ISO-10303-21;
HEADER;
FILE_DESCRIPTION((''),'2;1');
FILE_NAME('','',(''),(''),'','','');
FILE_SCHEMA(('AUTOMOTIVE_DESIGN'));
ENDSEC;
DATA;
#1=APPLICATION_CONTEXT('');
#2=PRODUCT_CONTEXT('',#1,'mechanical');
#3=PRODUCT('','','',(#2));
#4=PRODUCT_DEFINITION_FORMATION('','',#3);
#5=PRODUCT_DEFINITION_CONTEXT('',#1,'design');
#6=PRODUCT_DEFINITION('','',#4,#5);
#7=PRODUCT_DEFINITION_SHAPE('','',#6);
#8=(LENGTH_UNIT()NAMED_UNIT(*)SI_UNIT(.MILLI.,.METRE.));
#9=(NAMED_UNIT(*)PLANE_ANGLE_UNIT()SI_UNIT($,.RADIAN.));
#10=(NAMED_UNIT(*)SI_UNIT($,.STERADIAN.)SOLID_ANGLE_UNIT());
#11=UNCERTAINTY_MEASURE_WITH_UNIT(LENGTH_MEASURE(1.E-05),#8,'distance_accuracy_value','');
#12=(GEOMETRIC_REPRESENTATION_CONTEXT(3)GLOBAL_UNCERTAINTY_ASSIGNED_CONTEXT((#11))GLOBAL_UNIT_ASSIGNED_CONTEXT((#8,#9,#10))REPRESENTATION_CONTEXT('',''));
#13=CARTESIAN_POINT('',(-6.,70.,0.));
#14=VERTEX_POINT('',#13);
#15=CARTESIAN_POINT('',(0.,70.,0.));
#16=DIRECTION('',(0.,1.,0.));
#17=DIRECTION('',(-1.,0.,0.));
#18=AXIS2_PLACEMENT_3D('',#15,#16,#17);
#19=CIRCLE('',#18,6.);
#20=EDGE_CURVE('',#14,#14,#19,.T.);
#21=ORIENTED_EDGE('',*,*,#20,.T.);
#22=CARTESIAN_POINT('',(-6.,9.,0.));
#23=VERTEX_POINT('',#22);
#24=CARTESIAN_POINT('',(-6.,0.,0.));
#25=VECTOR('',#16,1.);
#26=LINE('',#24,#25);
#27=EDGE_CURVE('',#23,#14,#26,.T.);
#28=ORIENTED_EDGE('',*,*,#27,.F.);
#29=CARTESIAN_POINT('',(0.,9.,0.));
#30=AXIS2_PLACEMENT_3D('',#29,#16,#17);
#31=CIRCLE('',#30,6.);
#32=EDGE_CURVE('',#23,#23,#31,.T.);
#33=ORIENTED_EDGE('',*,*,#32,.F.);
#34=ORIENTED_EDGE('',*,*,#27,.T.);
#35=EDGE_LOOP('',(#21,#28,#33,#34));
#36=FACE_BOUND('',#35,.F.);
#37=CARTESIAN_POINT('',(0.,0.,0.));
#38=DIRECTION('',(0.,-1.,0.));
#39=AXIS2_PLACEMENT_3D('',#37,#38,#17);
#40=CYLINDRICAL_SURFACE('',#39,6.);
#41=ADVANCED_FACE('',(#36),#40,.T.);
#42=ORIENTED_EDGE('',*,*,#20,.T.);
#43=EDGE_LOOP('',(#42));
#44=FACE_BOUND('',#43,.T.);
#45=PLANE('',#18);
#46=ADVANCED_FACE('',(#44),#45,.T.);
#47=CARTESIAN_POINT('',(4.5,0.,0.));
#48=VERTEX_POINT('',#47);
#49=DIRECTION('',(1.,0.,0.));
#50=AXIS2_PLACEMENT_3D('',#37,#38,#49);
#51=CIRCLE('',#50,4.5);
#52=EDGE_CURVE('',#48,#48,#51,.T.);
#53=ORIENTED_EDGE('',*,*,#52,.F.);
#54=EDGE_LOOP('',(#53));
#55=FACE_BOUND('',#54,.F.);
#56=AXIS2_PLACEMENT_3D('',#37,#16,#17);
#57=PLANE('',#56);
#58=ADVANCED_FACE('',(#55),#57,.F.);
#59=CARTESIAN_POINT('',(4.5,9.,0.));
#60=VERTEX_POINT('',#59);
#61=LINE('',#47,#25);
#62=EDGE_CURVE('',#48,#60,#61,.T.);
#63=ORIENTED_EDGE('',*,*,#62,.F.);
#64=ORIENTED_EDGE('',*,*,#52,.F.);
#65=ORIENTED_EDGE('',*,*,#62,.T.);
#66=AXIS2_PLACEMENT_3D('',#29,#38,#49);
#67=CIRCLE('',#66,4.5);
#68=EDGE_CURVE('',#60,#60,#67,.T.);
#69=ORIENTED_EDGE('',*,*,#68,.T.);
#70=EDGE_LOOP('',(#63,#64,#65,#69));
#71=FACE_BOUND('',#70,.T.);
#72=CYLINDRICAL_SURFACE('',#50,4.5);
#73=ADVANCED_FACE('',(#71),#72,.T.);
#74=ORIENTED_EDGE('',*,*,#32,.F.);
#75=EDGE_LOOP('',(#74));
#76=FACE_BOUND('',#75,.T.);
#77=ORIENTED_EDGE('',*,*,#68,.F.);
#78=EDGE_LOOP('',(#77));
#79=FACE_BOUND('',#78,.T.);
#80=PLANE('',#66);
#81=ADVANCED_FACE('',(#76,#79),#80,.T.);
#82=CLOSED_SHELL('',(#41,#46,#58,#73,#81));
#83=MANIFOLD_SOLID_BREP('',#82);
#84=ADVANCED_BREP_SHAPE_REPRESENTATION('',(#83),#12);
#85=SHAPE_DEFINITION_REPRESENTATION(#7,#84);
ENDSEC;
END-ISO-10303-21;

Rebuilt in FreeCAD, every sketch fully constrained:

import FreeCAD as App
import Part
import Sketcher
from FreeCAD import Vector
Q = App.Units.Quantity

doc = App.newDocument("Part")
body = doc.addObject("PartDesign::Body", "Body")

# Sketch on XZ plane
sketch1 = body.newObject("Sketcher::SketchObject", "Sketch")
sketch1.AttachmentSupport = (doc.getObject("XZ_Plane"), [""])
sketch1.MapMode = "FlatFace"
sketch1.addGeometry(Part.Circle(Vector(0, 0, 0), Vector(0, 0, 1), 6), False)
sketch1.addConstraint(Sketcher.Constraint("Coincident", 0, 3, -1, 1))
sketch1.addConstraint(Sketcher.Constraint("Diameter", 0, Q("12 mm")))
pad1 = body.newObject("PartDesign::Pad", "Pad")
pad1.Profile = sketch1
pad1.Length = 70
pad1.Reversed = True

# Sketch on XZ plane
sketch2 = body.newObject("Sketcher::SketchObject", "Sketch001")
sketch2.AttachmentSupport = (doc.getObject("XZ_Plane"), [""])
sketch2.MapMode = "FlatFace"
sketch2.addGeometry(Part.Circle(Vector(0, 0, 0), Vector(0, 0, 1), 6), False)
sketch2.addGeometry(Part.Circle(Vector(0, 0, 0), Vector(0, 0, 1), 4.5), False)
sketch2.addConstraint(Sketcher.Constraint("Coincident", 0, 3, -1, 1))
sketch2.addConstraint(Sketcher.Constraint("Coincident", 1, 3, -1, 1))
sketch2.addConstraint(Sketcher.Constraint("Diameter", 1, Q("9 mm")))
sketch2.addConstraint(Sketcher.Constraint("Diameter", 0, Q("12 mm")))
pocket1 = body.newObject("PartDesign::Pocket", "Pocket")
pocket1.Profile = sketch2
pocket1.Length = 9

doc.recompute()
